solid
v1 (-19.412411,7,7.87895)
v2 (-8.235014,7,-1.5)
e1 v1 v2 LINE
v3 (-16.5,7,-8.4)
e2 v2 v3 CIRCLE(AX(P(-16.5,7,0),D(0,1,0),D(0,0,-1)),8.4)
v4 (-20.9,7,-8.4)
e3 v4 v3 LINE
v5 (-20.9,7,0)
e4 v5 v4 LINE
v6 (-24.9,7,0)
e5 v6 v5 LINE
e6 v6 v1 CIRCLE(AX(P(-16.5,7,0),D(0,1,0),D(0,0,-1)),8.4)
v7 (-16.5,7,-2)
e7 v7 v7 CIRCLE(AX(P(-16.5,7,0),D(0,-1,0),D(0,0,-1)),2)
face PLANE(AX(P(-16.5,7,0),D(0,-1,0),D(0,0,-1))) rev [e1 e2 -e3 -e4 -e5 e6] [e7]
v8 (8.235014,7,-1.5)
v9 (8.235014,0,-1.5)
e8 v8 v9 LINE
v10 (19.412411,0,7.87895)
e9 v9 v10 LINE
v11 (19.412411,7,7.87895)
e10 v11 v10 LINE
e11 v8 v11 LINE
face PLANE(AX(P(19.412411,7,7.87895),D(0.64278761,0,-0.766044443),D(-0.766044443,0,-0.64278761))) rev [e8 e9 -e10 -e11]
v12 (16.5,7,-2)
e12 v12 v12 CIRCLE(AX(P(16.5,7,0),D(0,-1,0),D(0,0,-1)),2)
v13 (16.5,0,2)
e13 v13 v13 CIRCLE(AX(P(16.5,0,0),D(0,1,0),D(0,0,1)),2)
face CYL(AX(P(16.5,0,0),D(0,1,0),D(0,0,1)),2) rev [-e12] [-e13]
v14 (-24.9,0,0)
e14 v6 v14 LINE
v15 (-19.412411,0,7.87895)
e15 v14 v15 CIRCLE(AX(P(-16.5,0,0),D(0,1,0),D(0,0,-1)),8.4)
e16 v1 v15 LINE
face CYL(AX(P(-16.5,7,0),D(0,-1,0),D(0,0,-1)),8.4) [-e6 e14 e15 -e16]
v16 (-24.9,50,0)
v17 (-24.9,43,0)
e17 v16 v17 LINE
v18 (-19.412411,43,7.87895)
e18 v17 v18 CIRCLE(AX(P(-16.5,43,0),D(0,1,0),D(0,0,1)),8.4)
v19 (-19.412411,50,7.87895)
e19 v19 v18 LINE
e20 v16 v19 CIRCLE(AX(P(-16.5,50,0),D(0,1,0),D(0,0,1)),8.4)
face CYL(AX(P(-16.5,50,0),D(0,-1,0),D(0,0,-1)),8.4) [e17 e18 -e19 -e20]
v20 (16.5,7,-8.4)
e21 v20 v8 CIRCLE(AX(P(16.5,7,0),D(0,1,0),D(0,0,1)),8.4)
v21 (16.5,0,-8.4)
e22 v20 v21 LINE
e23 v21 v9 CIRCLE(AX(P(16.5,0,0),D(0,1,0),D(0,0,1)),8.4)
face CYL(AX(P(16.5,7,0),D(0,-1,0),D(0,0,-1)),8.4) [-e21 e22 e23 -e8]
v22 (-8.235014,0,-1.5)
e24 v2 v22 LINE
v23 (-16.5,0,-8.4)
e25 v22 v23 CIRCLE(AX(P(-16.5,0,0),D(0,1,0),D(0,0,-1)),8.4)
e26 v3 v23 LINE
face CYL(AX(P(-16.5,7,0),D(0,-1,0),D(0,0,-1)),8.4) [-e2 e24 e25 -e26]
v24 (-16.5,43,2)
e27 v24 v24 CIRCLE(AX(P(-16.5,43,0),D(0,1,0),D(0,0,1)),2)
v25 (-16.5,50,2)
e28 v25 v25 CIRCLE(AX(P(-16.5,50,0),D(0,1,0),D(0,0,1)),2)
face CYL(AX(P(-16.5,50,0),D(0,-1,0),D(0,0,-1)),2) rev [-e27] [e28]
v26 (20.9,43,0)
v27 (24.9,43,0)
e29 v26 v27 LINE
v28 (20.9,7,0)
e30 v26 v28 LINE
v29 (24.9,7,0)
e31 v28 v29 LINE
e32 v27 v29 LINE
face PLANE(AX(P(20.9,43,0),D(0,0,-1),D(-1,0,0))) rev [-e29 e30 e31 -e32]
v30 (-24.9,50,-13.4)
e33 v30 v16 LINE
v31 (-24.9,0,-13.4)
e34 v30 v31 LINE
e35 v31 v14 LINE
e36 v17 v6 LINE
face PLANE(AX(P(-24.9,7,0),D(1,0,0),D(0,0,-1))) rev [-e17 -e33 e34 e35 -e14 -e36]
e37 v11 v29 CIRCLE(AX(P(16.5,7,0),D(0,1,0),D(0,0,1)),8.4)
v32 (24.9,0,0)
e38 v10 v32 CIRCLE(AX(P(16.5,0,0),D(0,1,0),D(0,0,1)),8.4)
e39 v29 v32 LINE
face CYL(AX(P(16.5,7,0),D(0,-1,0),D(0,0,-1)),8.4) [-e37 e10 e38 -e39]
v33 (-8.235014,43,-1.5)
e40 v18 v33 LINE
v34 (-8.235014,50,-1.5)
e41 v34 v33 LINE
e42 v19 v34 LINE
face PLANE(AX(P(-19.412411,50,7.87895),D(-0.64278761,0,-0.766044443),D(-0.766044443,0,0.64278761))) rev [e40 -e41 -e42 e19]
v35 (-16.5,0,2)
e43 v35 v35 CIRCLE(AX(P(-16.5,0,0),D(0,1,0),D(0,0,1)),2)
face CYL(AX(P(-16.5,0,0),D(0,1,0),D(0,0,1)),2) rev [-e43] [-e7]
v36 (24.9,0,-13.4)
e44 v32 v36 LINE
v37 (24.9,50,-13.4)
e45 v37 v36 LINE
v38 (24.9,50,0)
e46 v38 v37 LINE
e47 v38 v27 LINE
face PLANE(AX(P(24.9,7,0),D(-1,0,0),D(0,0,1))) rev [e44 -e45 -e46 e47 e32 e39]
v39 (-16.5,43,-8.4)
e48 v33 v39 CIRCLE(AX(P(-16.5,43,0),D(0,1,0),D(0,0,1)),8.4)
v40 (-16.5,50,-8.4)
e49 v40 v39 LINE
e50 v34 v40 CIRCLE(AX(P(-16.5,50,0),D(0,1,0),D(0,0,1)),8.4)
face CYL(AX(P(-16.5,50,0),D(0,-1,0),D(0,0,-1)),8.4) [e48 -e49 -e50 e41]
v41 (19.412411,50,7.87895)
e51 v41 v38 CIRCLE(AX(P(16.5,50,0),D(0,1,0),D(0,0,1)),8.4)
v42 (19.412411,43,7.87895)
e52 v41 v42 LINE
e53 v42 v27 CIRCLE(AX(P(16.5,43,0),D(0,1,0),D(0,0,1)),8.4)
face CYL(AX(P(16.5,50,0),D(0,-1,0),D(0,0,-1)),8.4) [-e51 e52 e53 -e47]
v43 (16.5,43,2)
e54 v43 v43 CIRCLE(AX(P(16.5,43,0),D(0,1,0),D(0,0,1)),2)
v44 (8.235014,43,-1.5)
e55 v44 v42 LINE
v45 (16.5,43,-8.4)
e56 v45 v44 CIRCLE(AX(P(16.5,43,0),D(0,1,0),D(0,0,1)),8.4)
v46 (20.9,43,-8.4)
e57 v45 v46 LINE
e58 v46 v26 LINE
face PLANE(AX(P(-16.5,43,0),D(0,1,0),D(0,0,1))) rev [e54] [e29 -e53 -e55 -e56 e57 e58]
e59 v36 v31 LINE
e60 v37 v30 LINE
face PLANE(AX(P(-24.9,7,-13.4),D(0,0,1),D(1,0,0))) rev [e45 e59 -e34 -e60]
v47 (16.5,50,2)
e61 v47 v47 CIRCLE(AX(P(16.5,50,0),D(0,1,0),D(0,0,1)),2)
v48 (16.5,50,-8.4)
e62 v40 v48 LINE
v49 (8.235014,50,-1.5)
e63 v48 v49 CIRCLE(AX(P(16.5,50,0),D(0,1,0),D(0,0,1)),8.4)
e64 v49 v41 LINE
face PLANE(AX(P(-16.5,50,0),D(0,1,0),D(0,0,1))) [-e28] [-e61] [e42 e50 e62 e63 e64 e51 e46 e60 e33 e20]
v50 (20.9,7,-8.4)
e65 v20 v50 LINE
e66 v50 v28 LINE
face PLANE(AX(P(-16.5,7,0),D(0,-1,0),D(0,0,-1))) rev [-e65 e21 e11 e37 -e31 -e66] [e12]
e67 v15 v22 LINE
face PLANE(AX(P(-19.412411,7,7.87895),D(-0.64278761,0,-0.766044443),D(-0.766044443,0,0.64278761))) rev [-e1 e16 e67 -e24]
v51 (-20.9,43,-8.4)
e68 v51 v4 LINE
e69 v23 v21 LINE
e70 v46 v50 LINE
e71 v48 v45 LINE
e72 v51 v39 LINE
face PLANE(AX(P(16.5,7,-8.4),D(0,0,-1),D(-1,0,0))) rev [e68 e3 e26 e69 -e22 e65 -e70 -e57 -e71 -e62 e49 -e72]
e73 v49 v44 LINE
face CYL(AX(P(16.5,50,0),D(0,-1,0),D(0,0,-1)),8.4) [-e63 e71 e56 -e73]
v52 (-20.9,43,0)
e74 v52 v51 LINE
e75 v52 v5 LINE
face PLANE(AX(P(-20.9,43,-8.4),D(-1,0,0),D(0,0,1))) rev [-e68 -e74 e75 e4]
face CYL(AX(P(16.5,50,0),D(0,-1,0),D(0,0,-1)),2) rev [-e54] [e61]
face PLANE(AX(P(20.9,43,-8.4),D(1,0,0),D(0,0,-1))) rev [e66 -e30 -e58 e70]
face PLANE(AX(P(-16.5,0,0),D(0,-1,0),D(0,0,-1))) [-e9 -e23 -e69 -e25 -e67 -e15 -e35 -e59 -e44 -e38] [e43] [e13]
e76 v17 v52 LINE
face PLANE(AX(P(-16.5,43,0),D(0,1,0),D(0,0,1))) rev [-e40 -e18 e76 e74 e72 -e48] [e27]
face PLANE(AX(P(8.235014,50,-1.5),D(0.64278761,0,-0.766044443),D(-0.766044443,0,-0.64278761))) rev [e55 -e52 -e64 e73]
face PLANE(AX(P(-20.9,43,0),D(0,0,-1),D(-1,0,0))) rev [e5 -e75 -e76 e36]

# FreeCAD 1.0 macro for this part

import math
import FreeCAD as App
import Part
import Sketcher
Q = App.Units.Quantity


def add_polygon(sketch, points):
    """Adds a closed chain of lines whose ends are joined by coincident constraints."""
    first, n = sketch.GeometryCount, len(points)
    for a, b in zip(points, points[1:] + points[:1]):
        sketch.addGeometry(Part.LineSegment(App.Vector(*a, 0), App.Vector(*b, 0)), False)
    for i in range(n):
        sketch.addConstraint(Sketcher.Constraint("Coincident", first + i, 2, first + (i + 1) % n, 1))

doc = App.newDocument("Part")
body = doc.addObject("PartDesign::Body", "Body")

# Sketch on XZ plane
sketch1 = doc.addObject("Sketcher::SketchObject", "Sketch")
body.addObject(sketch1)
sketch1.AttachmentSupport = (doc.XZ_Plane, [""])
sketch1.MapMode = "FlatFace"
sketch1.addGeometry(Part.LineSegment(App.Vector(-24.9, -13.4, 0), App.Vector(-24.9, 0, 0)), False)
sketch1.addGeometry(Part.ArcOfCircle(Part.Circle(App.Vector(-16.5, 0, 0), App.Vector(0, 0, 1), 8.4), math.radians(110.286561), math.radians(180)), False)
sketch1.addGeometry(Part.LineSegment(App.Vector(-19.412411, 7.87895, 0), App.Vector(-8.235014, -1.5, 0)), False)
sketch1.addGeometry(Part.ArcOfCircle(Part.Circle(App.Vector(-16.5, 0, 0), App.Vector(0, 0, 1), 8.4), math.radians(-90), math.radians(-10.286561)), False)
sketch1.addGeometry(Part.LineSegment(App.Vector(-16.5, -8.4, 0), App.Vector(16.5, -8.4, 0)), False)
sketch1.addGeometry(Part.ArcOfCircle(Part.Circle(App.Vector(16.5, 0, 0), App.Vector(0, 0, 1), 8.4), math.radians(-169.713439), math.radians(-90)), False)
sketch1.addGeometry(Part.LineSegment(App.Vector(8.235014, -1.5, 0), App.Vector(19.412411, 7.87895, 0)), False)
sketch1.addGeometry(Part.ArcOfCircle(Part.Circle(App.Vector(16.5, 0, 0), App.Vector(0, 0, 1), 8.4), math.radians(0), math.radians(69.713439)), False)
sketch1.addGeometry(Part.LineSegment(App.Vector(24.9, 0, 0), App.Vector(24.9, -13.4, 0)), False)
sketch1.addGeometry(Part.LineSegment(App.Vector(24.9, -13.4, 0), App.Vector(-24.9, -13.4, 0)), False)
sketch1.addConstraint(Sketcher.Constraint("Tangent", 0, 2, 1, 2))
sketch1.addConstraint(Sketcher.Constraint("Coincident", 1, 1, 2, 1))
sketch1.addConstraint(Sketcher.Constraint("Coincident", 2, 2, 3, 2))
sketch1.addConstraint(Sketcher.Constraint("Tangent", 3, 1, 4, 1))
sketch1.addConstraint(Sketcher.Constraint("Tangent", 4, 2, 5, 2))
sketch1.addConstraint(Sketcher.Constraint("Coincident", 5, 1, 6, 1))
sketch1.addConstraint(Sketcher.Constraint("Coincident", 6, 2, 7, 2))
sketch1.addConstraint(Sketcher.Constraint("Tangent", 7, 1, 8, 1))
sketch1.addConstraint(Sketcher.Constraint("Coincident", 8, 2, 9, 1))
sketch1.addConstraint(Sketcher.Constraint("Coincident", 9, 2, 0, 1))
sketch1.addConstraint(Sketcher.Constraint("Vertical", 0))
sketch1.addConstraint(Sketcher.Constraint("Horizontal", 4))
sketch1.addConstraint(Sketcher.Constraint("Vertical", 8))
sketch1.addConstraint(Sketcher.Constraint("Horizontal", 9))
sketch1.addConstraint(Sketcher.Constraint("Coincident", 3, 3, 1, 3))
sketch1.addConstraint(Sketcher.Constraint("Coincident", 7, 3, 5, 3))
sketch1.addConstraint(Sketcher.Constraint("Equal", 1, 3))
sketch1.addConstraint(Sketcher.Constraint("Equal", 3, 5))
sketch1.addConstraint(Sketcher.Constraint("Equal", 5, 7))
sketch1.addConstraint(Sketcher.Constraint("Symmetric", 1, 3, 5, 3, -1, 1))
sketch1.addConstraint(Sketcher.Constraint("Horizontal", 2, 2, 5, 1))
sketch1.addConstraint(Sketcher.Constraint("Horizontal", 1, 1, 6, 2))
sketch1.addConstraint(Sketcher.Constraint("Radius", 1, Q("8.4 mm")))
sketch1.addConstraint(Sketcher.Constraint("DistanceX", 4, 1, 4, 2, Q("33 mm")))
sketch1.addConstraint(Sketcher.Constraint("Angle", 2, Q("-40 deg")))
sketch1.addConstraint(Sketcher.Constraint("DistanceY", 0, 1, 0, 2, Q("13.4 mm")))
sketch1.addConstraint(Sketcher.Constraint("DistanceY", 2, 2, -1, 1, Q("1.5 mm")))
pad1 = doc.addObject("PartDesign::Pad", "Pad")
body.addObject(pad1)
pad1.Profile = sketch1
pad1.Length = 7
pad1.Reversed = True

# Sketch on XZ plane
sketch2 = doc.addObject("Sketcher::SketchObject", "Sketch001")
body.addObject(sketch2)
sketch2.AttachmentSupport = (doc.XZ_Plane, [""])
sketch2.MapMode = "FlatFace"
sketch2.AttachmentOffset = App.Placement(App.Vector(0, 0, -7), App.Rotation())
sketch2.addGeometry(Part.Circle(App.Vector(-16.5, 0, 0), App.Vector(0, 0, 1), 2), False)
sketch2.addGeometry(Part.Circle(App.Vector(16.5, 0, 0), App.Vector(0, 0, 1), 2), False)
sketch2.addConstraint(Sketcher.Constraint("Equal", 0, 1))
sketch2.addConstraint(Sketcher.Constraint("Symmetric", 0, 3, 1, 3, -1, 1))
sketch2.addConstraint(Sketcher.Constraint("PointOnObject", 0, 3, -1))
sketch2.addConstraint(Sketcher.Constraint("Diameter", 0, Q("4 mm")))
sketch2.addConstraint(Sketcher.Constraint("DistanceX", 0, 3, 1, 3, Q("33 mm")))
pocket1 = doc.addObject("PartDesign::Pocket", "Pocket")
body.addObject(pocket1)
pocket1.Profile = sketch2
pocket1.Type = "ThroughAll"
pocket1.Midplane = True

# Sketch on XZ plane
sketch3 = doc.addObject("Sketcher::SketchObject", "Sketch002")
body.addObject(sketch3)
sketch3.AttachmentSupport = (doc.XZ_Plane, [""])
sketch3.MapMode = "FlatFace"
sketch3.AttachmentOffset = App.Placement(App.Vector(0, 0, -7), App.Rotation())
add_polygon(sketch3, [(-24.9, -13.4), (-24.9, 0), (-20.9, 0), (-20.9, -8.4), (20.9, -8.4), (20.9, 0), (24.9, 0), (24.9, -13.4)])  # lines 0-7
sketch3.addConstraint(Sketcher.Constraint("Vertical", 0))
sketch3.addConstraint(Sketcher.Constraint("Horizontal", 1))
sketch3.addConstraint(Sketcher.Constraint("Vertical", 2))
sketch3.addConstraint(Sketcher.Constraint("Horizontal", 3))
sketch3.addConstraint(Sketcher.Constraint("Vertical", 4))
sketch3.addConstraint(Sketcher.Constraint("Horizontal", 5))
sketch3.addConstraint(Sketcher.Constraint("Vertical", 6))
sketch3.addConstraint(Sketcher.Constraint("Horizontal", 7))
sketch3.addConstraint(Sketcher.Constraint("Symmetric", 1, 2, 4, 2, -1, 1))
sketch3.addConstraint(Sketcher.Constraint("Symmetric", 0, 2, 5, 2, -2))
sketch3.addConstraint(Sketcher.Constraint("DistanceX", 1, 1, 1, 2, Q("4 mm")))
sketch3.addConstraint(Sketcher.Constraint("DistanceX", 3, 1, 3, 2, Q("41.8 mm")))
sketch3.addConstraint(Sketcher.Constraint("DistanceY", 0, 1, 0, 2, Q("13.4 mm")))
sketch3.addConstraint(Sketcher.Constraint("DistanceY", 2, 2, 2, 1, Q("8.4 mm")))
pad2 = doc.addObject("PartDesign::Pad", "Pad001")
body.addObject(pad2)
pad2.Profile = sketch3
pad2.Length = 36
pad2.Reversed = True

# Sketch on XZ plane
sketch4 = doc.addObject("Sketcher::SketchObject", "Sketch003")
body.addObject(sketch4)
sketch4.AttachmentSupport = (doc.XZ_Plane, [""])
sketch4.MapMode = "FlatFace"
sketch4.AttachmentOffset = App.Placement(App.Vector(0, 0, -43), App.Rotation())
sketch4.addGeometry(Part.LineSegment(App.Vector(-24.9, -13.4, 0), App.Vector(-24.9, 0, 0)), False)
sketch4.addGeometry(Part.ArcOfCircle(Part.Circle(App.Vector(-16.5, 0, 0), App.Vector(0, 0, 1), 8.4), math.radians(110.286561), math.radians(180)), False)
sketch4.addGeometry(Part.LineSegment(App.Vector(-19.412411, 7.87895, 0), App.Vector(-8.235014, -1.5, 0)), False)
sketch4.addGeometry(Part.ArcOfCircle(Part.Circle(App.Vector(-16.5, 0, 0), App.Vector(0, 0, 1), 8.4), math.radians(-90), math.radians(-10.286561)), False)
sketch4.addGeometry(Part.LineSegment(App.Vector(-16.5, -8.4, 0), App.Vector(16.5, -8.4, 0)), False)
sketch4.addGeometry(Part.ArcOfCircle(Part.Circle(App.Vector(16.5, 0, 0), App.Vector(0, 0, 1), 8.4), math.radians(-169.713439), math.radians(-90)), False)
sketch4.addGeometry(Part.LineSegment(App.Vector(8.235014, -1.5, 0), App.Vector(19.412411, 7.87895, 0)), False)
sketch4.addGeometry(Part.ArcOfCircle(Part.Circle(App.Vector(16.5, 0, 0), App.Vector(0, 0, 1), 8.4), math.radians(0), math.radians(69.713439)), False)
sketch4.addGeometry(Part.LineSegment(App.Vector(24.9, 0, 0), App.Vector(24.9, -13.4, 0)), False)
sketch4.addGeometry(Part.LineSegment(App.Vector(24.9, -13.4, 0), App.Vector(-24.9, -13.4, 0)), False)
sketch4.addGeometry(Part.Circle(App.Vector(-16.5, 0, 0), App.Vector(0, 0, 1), 2), False)
sketch4.addGeometry(Part.Circle(App.Vector(16.5, 0, 0), App.Vector(0, 0, 1), 2), False)
sketch4.addConstraint(Sketcher.Constraint("Tangent", 0, 2, 1, 2))
sketch4.addConstraint(Sketcher.Constraint("Coincident", 1, 1, 2, 1))
sketch4.addConstraint(Sketcher.Constraint("Coincident", 2, 2, 3, 2))
sketch4.addConstraint(Sketcher.Constraint("Tangent", 3, 1, 4, 1))
sketch4.addConstraint(Sketcher.Constraint("Tangent", 4, 2, 5, 2))
sketch4.addConstraint(Sketcher.Constraint("Coincident", 5, 1, 6, 1))
sketch4.addConstraint(Sketcher.Constraint("Coincident", 6, 2, 7, 2))
sketch4.addConstraint(Sketcher.Constraint("Tangent", 7, 1, 8, 1))
sketch4.addConstraint(Sketcher.Constraint("Coincident", 8, 2, 9, 1))
sketch4.addConstraint(Sketcher.Constraint("Coincident", 9, 2, 0, 1))
sketch4.addConstraint(Sketcher.Constraint("Vertical", 0))
sketch4.addConstraint(Sketcher.Constraint("Horizontal", 4))
sketch4.addConstraint(Sketcher.Constraint("Vertical", 8))
sketch4.addConstraint(Sketcher.Constraint("Horizontal", 9))
sketch4.addConstraint(Sketcher.Constraint("Coincident", 3, 3, 1, 3))
sketch4.addConstraint(Sketcher.Constraint("Coincident", 7, 3, 5, 3))
sketch4.addConstraint(Sketcher.Constraint("Coincident", 10, 3, 1, 3))
sketch4.addConstraint(Sketcher.Constraint("Coincident", 11, 3, 5, 3))
sketch4.addConstraint(Sketcher.Constraint("Equal", 1, 3))
sketch4.addConstraint(Sketcher.Constraint("Equal", 3, 5))
sketch4.addConstraint(Sketcher.Constraint("Equal", 5, 7))
sketch4.addConstraint(Sketcher.Constraint("Equal", 10, 11))
sketch4.addConstraint(Sketcher.Constraint("Symmetric", 1, 3, 5, 3, -1, 1))
sketch4.addConstraint(Sketcher.Constraint("Horizontal", 2, 2, 5, 1))
sketch4.addConstraint(Sketcher.Constraint("Horizontal", 1, 1, 6, 2))
sketch4.addConstraint(Sketcher.Constraint("Diameter", 10, Q("4 mm")))
sketch4.addConstraint(Sketcher.Constraint("Radius", 1, Q("8.4 mm")))
sketch4.addConstraint(Sketcher.Constraint("DistanceX", 4, 1, 4, 2, Q("33 mm")))
sketch4.addConstraint(Sketcher.Constraint("Angle", 2, Q("-40 deg")))
sketch4.addConstraint(Sketcher.Constraint("DistanceY", 0, 1, 0, 2, Q("13.4 mm")))
sketch4.addConstraint(Sketcher.Constraint("DistanceY", 2, 2, -1, 1, Q("1.5 mm")))
pad3 = doc.addObject("PartDesign::Pad", "Pad002")
body.addObject(pad3)
pad3.Profile = sketch4
pad3.Length = 7
pad3.Reversed = True

doc.recompute()
